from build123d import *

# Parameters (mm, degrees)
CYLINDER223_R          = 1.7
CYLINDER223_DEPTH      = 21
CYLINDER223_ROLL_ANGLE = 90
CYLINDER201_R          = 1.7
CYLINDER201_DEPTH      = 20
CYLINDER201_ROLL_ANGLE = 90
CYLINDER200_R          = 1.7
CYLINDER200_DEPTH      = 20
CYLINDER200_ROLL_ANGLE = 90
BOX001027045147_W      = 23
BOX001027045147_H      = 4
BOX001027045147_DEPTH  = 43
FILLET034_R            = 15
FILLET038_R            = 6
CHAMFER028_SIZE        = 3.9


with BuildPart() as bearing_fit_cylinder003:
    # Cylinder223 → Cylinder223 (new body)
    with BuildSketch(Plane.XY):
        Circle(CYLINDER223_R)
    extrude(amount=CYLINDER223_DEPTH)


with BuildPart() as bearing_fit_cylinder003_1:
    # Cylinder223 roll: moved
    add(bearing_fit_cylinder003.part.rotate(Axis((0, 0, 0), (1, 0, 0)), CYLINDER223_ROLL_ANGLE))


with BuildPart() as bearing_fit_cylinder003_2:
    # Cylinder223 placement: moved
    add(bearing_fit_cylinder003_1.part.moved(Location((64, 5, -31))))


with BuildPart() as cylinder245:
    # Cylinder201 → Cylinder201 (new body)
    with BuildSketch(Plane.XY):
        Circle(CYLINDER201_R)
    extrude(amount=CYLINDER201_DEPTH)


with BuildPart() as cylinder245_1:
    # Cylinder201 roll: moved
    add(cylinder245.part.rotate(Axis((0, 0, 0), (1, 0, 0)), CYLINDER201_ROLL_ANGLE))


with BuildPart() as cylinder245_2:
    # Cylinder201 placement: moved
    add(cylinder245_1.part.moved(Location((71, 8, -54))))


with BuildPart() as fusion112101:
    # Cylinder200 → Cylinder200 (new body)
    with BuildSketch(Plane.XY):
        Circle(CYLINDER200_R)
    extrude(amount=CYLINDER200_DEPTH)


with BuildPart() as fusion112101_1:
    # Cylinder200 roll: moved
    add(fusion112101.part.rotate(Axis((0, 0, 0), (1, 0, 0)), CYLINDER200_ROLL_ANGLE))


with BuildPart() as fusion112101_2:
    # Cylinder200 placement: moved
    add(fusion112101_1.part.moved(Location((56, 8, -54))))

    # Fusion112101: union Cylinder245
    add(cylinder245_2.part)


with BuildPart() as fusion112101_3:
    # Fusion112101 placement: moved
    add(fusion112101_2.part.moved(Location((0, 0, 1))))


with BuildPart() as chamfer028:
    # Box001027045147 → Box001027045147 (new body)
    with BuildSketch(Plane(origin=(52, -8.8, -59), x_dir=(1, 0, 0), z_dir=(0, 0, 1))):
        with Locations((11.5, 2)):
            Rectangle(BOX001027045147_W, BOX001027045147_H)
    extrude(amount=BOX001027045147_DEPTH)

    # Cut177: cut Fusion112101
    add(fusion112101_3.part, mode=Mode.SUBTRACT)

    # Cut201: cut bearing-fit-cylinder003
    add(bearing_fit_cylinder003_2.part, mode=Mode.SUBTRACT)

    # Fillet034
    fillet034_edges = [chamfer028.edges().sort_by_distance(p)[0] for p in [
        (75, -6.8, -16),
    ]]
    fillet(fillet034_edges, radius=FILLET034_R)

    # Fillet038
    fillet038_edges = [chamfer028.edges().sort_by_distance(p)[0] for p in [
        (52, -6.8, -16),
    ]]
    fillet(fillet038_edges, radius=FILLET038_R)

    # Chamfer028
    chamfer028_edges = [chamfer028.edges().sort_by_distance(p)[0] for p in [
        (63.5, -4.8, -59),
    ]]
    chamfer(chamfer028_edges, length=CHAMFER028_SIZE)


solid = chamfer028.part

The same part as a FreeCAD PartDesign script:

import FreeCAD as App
import Part
import Sketcher

V = App.Vector
Q = App.Units.Quantity


def edges_at(feature, points):
    """Names of the edges that pass closest to the given points."""
    edges = feature.Shape.Edges
    near = lambda p: min(range(len(edges)), key=lambda i: edges[i].distToShape(Part.Vertex(*p))[0])
    return sorted({f"Edge{near(p) + 1}" for p in points})


def add_polygon(sketch, points):
    """Adds a closed chain of lines whose ends are joined by coincident constraints."""
    first, n = sketch.GeometryCount, len(points)
    for a, b in zip(points, points[1:] + points[:1]):
        sketch.addGeometry(Part.LineSegment(App.Vector(*a, 0), App.Vector(*b, 0)), False)
    for i in range(n):
        sketch.addConstraint(Sketcher.Constraint("Coincident", first + i, 2, first + (i + 1) % n, 1))

doc = App.newDocument("Part")
body = doc.addObject("PartDesign::Body", "Body")

sketch1 = body.newObject("Sketcher::SketchObject", "Sketch")
sketch1.AttachmentSupport = (doc.getObject("XY_Plane"), [""])
sketch1.MapMode = "FlatFace"
sketch1.addGeometry(Part.Circle(V(0, 0, 0), V(0, 0, 1), 1.7), False)
sketch1.addConstraint([
    Sketcher.Constraint("Coincident", 0, 3, -1, 1),
    Sketcher.Constraint("Diameter", 0, Q("3.4 mm")),
])
pad1 = body.newObject("PartDesign::Pad", "Pad")
pad1.Profile = sketch1
pad1.Length = 21
body2 = doc.addObject("PartDesign::Body", "Body001")
doc.recompute()

body.Placement = App.Placement(V(0, 0, 0), App.Rotation(V(1, 0, 0), 90))
boolean = body2.newObject("PartDesign::Boolean", "Boolean")
boolean.Type = "Fuse"
boolean.addObjects([body])
body3 = doc.addObject("PartDesign::Body", "Body002")
doc.recompute()

body2.Placement = App.Placement(V(64, 5, -31), App.Rotation(V(0, 0, 1), 0))
boolean2 = body3.newObject("PartDesign::Boolean", "Boolean001")
boolean2.Type = "Fuse"
boolean2.addObjects([body2])
body4 = doc.addObject("PartDesign::Body", "Body003")

sketch2 = body4.newObject("Sketcher::SketchObject", "Sketch001")
sketch2.AttachmentSupport = (doc.getObject("XY_Plane003"), [""])
sketch2.MapMode = "FlatFace"
sketch2.addGeometry(Part.Circle(V(0, 0, 0), V(0, 0, 1), 1.7), False)
sketch2.addConstraint([
    Sketcher.Constraint("Coincident", 0, 3, -1, 1),
    Sketcher.Constraint("Diameter", 0, Q("3.4 mm")),
])
pad2 = body4.newObject("PartDesign::Pad", "Pad001")
pad2.Profile = sketch2
pad2.Length = 20
body5 = doc.addObject("PartDesign::Body", "Body004")
doc.recompute()

body4.Placement = App.Placement(V(0, 0, 0), App.Rotation(V(1, 0, 0), 90))
boolean3 = body5.newObject("PartDesign::Boolean", "Boolean002")
boolean3.Type = "Fuse"
boolean3.addObjects([body4])
body6 = doc.addObject("PartDesign::Body", "Body005")
doc.recompute()

body5.Placement = App.Placement(V(71, 8, -54), App.Rotation(V(0, 0, 1), 0))
boolean4 = body6.newObject("PartDesign::Boolean", "Boolean003")
boolean4.Type = "Fuse"
boolean4.addObjects([body5])
body7 = doc.addObject("PartDesign::Body", "Body006")

sketch3 = body7.newObject("Sketcher::SketchObject", "Sketch002")
sketch3.AttachmentSupport = (doc.getObject("XY_Plane006"), [""])
sketch3.MapMode = "FlatFace"
sketch3.addGeometry(Part.Circle(V(0, 0, 0), V(0, 0, 1), 1.7), False)
sketch3.addConstraint([
    Sketcher.Constraint("Coincident", 0, 3, -1, 1),
    Sketcher.Constraint("Diameter", 0, Q("3.4 mm")),
])
pad3 = body7.newObject("PartDesign::Pad", "Pad002")
pad3.Profile = sketch3
pad3.Length = 20
body8 = doc.addObject("PartDesign::Body", "Body007")
doc.recompute()

body7.Placement = App.Placement(V(0, 0, 0), App.Rotation(V(1, 0, 0), 90))
boolean5 = body8.newObject("PartDesign::Boolean", "Boolean004")
boolean5.Type = "Fuse"
boolean5.addObjects([body7])
body9 = doc.addObject("PartDesign::Body", "Body008")
body9.AllowCompound = True
doc.recompute()

body8.Placement = App.Placement(V(56, 8, -54), App.Rotation(V(0, 0, 1), 0))
boolean6 = body9.newObject("PartDesign::Boolean", "Boolean005")
boolean6.Type = "Fuse"
boolean6.addObjects([body8])
doc.recompute()

boolean7 = body9.newObject("PartDesign::Boolean", "Boolean006")
boolean7.Type = "Fuse"
boolean7.addObjects([body6])
body10 = doc.addObject("PartDesign::Body", "Body009")
body10.AllowCompound = True
doc.recompute()

body9.Placement = App.Placement(V(0, 0, 1), App.Rotation(V(0, 0, 1), 0))
boolean8 = body10.newObject("PartDesign::Boolean", "Boolean007")
boolean8.Type = "Fuse"
boolean8.addObjects([body9])
body11 = doc.addObject("PartDesign::Body", "Body010")

sketch4 = body11.newObject("Sketcher::SketchObject", "Sketch003")
sketch4.AttachmentSupport = (doc.getObject("XY_Plane010"), [""])
sketch4.MapMode = "FlatFace"
sketch4.AttachmentOffset = App.Placement(V(0, 0, -59), App.Rotation())
add_polygon(sketch4, [(52, -4.8), (52, -8.8), (75, -8.8), (75, -4.8)])
sketch4.addConstraint([
    Sketcher.Constraint("Vertical", 0),
    Sketcher.Constraint("Horizontal", 1),
    Sketcher.Constraint("Vertical", 2),
    Sketcher.Constraint("Horizontal", 3),
    Sketcher.Constraint("DistanceX", 1, 1, 1, 2, Q("23 mm")),
    Sketcher.Constraint("DistanceY", 0, 2, 0, 1, Q("4 mm")),
    Sketcher.Constraint("DistanceX", -1, 1, 0, 2, Q("52 mm")),
    Sketcher.Constraint("DistanceY", 0, 2, -1, 1, Q("8.8 mm")),
])
pad4 = body11.newObject("PartDesign::Pad", "Pad003")
pad4.Profile = sketch4
pad4.Length = 43
doc.recompute()

boolean9 = body11.newObject("PartDesign::Boolean", "Boolean008")
boolean9.Type = "Cut"
boolean9.addObjects([body10])
doc.recompute()

boolean10 = body11.newObject("PartDesign::Boolean", "Boolean009")
boolean10.Type = "Cut"
boolean10.addObjects([body3])
doc.recompute()

fillet = body11.newObject("PartDesign::Fillet", "Fillet")
fillet.Base = (boolean10, edges_at(boolean10, [(75, -6.8, -16)]))
fillet.Radius = 15
doc.recompute()

fillet2 = body11.newObject("PartDesign::Fillet", "Fillet001")
fillet2.Base = (fillet, edges_at(fillet, [(52, -6.8, -16)]))
fillet2.Radius = 6
doc.recompute()

chamfer = body11.newObject("PartDesign::Chamfer", "Chamfer")
chamfer.Base = (fillet2, edges_at(fillet2, [(63.5, -4.8, -59)]))
chamfer.Size = 3.9

doc.recompute()
